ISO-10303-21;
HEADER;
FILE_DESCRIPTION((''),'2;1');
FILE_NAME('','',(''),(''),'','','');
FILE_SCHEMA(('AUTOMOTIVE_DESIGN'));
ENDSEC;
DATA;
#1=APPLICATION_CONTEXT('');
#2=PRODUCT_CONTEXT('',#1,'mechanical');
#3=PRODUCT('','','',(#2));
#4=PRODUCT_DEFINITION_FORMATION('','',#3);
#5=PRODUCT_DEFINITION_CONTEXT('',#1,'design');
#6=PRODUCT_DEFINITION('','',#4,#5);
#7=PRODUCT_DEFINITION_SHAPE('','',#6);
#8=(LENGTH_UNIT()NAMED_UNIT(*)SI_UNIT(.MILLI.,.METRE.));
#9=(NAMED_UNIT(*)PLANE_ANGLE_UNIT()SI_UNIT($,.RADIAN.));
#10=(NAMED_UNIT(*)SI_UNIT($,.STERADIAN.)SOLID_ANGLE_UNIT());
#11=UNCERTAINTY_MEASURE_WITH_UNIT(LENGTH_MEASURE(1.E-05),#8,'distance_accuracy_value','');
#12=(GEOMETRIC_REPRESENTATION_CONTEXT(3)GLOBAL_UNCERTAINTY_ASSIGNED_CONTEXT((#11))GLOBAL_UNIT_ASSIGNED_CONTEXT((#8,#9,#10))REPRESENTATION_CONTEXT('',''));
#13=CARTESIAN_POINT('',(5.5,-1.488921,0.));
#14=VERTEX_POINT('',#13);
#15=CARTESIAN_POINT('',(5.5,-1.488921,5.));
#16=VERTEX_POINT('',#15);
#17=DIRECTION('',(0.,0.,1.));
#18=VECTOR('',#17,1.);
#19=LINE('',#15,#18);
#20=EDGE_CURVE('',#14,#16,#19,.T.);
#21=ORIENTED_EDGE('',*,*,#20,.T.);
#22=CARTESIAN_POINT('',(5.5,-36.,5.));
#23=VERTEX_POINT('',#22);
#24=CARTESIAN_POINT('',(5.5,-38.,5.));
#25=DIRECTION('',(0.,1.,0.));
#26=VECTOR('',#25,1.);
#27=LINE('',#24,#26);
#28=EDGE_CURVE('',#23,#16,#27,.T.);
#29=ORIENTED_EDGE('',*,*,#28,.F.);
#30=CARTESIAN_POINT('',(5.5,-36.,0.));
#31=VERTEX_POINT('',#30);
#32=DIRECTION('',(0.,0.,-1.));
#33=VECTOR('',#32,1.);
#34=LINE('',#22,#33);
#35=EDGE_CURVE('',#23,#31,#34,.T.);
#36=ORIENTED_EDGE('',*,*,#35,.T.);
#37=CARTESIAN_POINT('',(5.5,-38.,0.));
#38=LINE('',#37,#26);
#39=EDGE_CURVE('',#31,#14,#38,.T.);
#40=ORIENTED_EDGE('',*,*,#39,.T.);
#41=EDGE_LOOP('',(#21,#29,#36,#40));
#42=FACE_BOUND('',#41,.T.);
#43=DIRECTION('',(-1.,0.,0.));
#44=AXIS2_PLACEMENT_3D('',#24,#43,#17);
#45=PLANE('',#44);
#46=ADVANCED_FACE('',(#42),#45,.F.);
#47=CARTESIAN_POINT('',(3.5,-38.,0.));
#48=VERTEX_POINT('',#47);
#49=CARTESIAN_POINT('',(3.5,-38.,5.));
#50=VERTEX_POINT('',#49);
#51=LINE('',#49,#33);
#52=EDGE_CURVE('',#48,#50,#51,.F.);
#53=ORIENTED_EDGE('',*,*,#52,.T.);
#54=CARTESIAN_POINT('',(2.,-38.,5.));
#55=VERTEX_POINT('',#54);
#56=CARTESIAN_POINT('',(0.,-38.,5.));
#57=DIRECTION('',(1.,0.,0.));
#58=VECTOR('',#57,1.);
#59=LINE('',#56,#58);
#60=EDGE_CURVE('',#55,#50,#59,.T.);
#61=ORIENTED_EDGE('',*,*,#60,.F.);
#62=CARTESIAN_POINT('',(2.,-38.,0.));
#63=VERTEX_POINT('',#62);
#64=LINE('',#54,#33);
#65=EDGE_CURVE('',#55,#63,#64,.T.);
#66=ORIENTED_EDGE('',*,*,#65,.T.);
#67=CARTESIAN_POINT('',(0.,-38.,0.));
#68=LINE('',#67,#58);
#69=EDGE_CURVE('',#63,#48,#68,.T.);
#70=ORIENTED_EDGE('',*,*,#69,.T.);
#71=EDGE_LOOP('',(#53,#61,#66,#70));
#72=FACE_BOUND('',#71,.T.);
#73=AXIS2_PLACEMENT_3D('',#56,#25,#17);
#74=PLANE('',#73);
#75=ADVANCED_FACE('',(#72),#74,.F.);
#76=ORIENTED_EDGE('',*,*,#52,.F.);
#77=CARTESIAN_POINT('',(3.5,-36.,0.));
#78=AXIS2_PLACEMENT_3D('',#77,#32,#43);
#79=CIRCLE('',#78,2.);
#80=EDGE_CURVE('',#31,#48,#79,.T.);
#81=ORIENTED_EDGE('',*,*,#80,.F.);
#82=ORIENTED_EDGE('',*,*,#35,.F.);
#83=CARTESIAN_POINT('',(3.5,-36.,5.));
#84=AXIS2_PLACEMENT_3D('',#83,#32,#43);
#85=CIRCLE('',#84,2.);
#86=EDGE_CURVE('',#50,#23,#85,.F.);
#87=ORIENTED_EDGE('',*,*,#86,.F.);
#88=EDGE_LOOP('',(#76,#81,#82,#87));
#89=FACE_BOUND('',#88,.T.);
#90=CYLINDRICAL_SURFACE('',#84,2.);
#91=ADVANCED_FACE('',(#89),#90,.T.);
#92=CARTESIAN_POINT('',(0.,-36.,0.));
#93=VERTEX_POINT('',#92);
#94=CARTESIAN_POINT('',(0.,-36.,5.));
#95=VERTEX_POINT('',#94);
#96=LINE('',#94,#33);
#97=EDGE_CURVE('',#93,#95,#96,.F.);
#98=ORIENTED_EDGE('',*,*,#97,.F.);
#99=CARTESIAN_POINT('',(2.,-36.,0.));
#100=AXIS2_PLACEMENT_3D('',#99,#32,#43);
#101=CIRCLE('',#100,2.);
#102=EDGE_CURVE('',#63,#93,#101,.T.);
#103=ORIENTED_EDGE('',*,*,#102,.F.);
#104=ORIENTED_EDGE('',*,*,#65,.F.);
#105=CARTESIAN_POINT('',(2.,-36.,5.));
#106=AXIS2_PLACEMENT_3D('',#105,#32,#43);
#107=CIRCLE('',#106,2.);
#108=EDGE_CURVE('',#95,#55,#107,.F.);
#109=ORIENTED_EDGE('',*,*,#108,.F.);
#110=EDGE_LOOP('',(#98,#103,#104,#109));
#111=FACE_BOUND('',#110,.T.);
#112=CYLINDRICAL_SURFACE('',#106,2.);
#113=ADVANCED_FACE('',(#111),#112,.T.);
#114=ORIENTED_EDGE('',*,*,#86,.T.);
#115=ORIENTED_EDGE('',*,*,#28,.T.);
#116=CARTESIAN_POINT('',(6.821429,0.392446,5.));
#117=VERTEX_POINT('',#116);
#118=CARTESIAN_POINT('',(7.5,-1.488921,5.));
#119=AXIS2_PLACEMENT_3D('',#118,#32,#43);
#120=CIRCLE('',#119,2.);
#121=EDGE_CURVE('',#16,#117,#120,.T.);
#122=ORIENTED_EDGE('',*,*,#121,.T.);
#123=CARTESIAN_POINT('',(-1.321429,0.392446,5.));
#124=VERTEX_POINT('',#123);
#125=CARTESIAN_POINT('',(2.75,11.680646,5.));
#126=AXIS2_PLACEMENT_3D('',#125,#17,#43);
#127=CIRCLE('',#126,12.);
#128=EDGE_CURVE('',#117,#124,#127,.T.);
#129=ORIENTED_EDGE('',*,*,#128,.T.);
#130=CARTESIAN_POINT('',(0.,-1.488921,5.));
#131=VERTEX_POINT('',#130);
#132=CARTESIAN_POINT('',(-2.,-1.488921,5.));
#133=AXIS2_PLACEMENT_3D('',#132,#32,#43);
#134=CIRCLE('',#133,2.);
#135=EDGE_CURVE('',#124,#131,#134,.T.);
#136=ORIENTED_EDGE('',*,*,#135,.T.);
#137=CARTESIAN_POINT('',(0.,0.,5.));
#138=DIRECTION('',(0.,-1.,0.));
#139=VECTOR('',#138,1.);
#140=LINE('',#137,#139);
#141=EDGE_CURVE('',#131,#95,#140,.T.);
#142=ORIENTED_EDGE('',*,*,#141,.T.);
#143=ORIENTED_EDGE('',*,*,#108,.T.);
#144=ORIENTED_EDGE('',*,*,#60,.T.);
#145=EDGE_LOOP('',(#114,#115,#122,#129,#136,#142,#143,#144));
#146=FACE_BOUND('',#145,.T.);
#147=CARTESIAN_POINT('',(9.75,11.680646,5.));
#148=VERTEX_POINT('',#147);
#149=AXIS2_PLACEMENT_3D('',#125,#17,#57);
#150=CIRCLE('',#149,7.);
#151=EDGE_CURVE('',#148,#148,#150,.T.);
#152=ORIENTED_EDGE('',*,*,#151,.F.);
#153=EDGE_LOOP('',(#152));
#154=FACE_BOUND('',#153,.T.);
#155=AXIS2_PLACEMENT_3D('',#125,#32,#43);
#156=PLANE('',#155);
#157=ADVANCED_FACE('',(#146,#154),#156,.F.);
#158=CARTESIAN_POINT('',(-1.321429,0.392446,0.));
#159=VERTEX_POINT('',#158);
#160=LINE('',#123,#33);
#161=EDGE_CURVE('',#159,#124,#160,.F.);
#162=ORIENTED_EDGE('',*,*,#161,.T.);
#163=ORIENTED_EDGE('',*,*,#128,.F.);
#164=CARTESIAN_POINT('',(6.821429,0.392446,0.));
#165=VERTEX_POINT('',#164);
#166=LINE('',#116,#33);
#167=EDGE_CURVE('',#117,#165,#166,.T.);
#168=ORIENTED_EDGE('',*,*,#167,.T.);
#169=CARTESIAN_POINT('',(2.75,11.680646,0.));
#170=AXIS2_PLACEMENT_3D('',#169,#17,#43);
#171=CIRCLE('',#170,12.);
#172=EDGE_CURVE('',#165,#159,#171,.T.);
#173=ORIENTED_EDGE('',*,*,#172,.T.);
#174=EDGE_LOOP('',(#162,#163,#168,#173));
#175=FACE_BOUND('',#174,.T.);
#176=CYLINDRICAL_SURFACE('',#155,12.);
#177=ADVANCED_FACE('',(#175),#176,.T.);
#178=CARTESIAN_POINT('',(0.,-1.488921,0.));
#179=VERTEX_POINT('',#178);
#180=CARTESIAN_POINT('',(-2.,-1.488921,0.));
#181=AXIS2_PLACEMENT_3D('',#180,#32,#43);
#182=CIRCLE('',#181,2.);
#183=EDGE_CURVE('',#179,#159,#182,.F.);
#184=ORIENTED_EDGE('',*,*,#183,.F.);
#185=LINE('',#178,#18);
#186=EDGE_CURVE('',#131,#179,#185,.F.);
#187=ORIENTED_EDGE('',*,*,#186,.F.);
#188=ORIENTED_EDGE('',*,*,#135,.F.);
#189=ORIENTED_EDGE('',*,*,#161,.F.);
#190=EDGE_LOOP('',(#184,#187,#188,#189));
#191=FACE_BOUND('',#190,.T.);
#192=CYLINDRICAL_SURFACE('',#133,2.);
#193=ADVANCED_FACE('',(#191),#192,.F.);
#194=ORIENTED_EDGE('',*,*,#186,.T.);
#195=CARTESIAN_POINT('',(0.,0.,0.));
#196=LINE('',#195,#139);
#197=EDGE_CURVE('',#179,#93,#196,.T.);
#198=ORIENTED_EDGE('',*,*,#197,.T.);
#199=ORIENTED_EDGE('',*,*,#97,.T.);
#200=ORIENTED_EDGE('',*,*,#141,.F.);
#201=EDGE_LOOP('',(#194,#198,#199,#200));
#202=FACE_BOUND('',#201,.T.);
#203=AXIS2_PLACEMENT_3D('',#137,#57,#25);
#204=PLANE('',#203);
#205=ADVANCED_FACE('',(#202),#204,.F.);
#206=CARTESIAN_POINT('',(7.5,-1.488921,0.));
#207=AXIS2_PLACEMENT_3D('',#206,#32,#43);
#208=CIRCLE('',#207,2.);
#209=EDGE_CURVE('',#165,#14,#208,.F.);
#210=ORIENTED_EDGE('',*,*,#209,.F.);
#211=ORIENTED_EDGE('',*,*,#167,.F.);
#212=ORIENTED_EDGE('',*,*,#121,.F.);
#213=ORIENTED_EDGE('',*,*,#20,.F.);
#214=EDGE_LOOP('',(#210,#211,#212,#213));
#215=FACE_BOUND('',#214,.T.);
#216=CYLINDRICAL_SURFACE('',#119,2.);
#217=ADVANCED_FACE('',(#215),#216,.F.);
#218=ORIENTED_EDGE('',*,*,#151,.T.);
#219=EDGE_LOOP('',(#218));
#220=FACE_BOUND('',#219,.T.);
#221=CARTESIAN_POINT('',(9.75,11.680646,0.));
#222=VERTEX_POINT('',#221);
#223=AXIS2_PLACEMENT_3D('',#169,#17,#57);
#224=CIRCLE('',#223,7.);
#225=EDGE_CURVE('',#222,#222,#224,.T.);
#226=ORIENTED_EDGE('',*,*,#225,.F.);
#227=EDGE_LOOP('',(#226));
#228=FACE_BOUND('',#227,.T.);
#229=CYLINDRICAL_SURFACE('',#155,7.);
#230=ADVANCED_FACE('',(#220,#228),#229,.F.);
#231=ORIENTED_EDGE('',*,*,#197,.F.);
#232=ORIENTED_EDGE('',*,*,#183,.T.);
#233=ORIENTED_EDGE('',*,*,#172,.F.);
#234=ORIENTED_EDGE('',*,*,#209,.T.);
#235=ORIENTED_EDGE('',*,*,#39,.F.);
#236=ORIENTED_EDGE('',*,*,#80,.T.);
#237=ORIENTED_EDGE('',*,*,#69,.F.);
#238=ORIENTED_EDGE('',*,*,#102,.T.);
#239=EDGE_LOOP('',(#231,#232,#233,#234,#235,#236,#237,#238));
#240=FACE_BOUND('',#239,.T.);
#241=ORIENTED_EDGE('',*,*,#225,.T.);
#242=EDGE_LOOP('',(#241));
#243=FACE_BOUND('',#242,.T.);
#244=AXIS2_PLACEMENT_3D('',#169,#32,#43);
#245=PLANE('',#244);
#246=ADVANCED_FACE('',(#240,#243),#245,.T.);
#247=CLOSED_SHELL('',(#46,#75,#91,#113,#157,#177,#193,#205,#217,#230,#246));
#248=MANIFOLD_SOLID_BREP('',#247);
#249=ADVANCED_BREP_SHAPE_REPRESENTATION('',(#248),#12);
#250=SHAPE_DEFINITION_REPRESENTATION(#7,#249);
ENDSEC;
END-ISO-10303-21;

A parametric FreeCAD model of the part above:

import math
import FreeCAD as App
import Part
import Sketcher

V = App.Vector


def edges_at(feature, points):
    """Names of the edges that pass closest to the given points."""
    edges = feature.Shape.Edges
    near = lambda p: min(range(len(edges)), key=lambda i: edges[i].distToShape(Part.Vertex(*p))[0])
    return sorted({f"Edge{near(p) + 1}" for p in points})

doc = App.newDocument("Part")
body = doc.addObject("PartDesign::Body", "Body")

sketch1 = body.newObject("Sketcher::SketchObject", "Sketch")
sketch1.AttachmentSupport = (doc.getObject("XY_Plane"), [""])
sketch1.MapMode = "FlatFace"
sketch1.addGeometry([
    Part.LineSegment(V(0, 0, 0), V(0, -38, 0)),
    Part.LineSegment(V(0, -38, 0), V(5.5, -38, 0)),
    Part.LineSegment(V(5.5, -38, 0), V(5.5, 0, 0)),
    Part.ArcOfCircle(Part.Circle(V(2.75, 11.680646, 0), V(0, 0, 1), 12), math.radians(-76.751985), math.radians(256.751985)),
    Part.Circle(V(2.75, 11.680646, 0), V(0, 0, 1), 7),
], False)
sketch1.addConstraint([
    Sketcher.Constraint("Coincident", 0, 2, 1, 1),
    Sketcher.Constraint("Coincident", 1, 2, 2, 1),
    Sketcher.Constraint("Coincident", 2, 2, 3, 1),
    Sketcher.Constraint("Coincident", 3, 2, 0, 1),
    Sketcher.Constraint("Vertical", 0),
    Sketcher.Constraint("Horizontal", 1),
    Sketcher.Constraint("Vertical", 2),
    Sketcher.Constraint("Coincident", 3, 2, -1, 1),
    Sketcher.Constraint("Coincident", 4, 3, 3, 3),
    Sketcher.Constraint("PointOnObject", 2, 2, -1),
    Sketcher.Constraint("Diameter", 4, 14.0),
    Sketcher.Constraint("Radius", 3, 12.0),
    Sketcher.Constraint("DistanceY", 0, 2, 0, 1, 38.0),
    Sketcher.Constraint("DistanceX", 1, 1, 1, 2, 5.5),
])
pad1 = body.newObject("PartDesign::Pad", "Pad")
pad1.Profile = sketch1
pad1.Length = 5
doc.recompute()

fillet = body.newObject("PartDesign::Fillet", "Fillet")
fillet.Base = (pad1, edges_at(pad1, [
    (5.5, 0, 2.5),
    (5.5, -38, 2.5),
    (0, -38, 2.5),
    (0, 0, 2.5),
]))
fillet.Radius = 2

doc.recompute()
